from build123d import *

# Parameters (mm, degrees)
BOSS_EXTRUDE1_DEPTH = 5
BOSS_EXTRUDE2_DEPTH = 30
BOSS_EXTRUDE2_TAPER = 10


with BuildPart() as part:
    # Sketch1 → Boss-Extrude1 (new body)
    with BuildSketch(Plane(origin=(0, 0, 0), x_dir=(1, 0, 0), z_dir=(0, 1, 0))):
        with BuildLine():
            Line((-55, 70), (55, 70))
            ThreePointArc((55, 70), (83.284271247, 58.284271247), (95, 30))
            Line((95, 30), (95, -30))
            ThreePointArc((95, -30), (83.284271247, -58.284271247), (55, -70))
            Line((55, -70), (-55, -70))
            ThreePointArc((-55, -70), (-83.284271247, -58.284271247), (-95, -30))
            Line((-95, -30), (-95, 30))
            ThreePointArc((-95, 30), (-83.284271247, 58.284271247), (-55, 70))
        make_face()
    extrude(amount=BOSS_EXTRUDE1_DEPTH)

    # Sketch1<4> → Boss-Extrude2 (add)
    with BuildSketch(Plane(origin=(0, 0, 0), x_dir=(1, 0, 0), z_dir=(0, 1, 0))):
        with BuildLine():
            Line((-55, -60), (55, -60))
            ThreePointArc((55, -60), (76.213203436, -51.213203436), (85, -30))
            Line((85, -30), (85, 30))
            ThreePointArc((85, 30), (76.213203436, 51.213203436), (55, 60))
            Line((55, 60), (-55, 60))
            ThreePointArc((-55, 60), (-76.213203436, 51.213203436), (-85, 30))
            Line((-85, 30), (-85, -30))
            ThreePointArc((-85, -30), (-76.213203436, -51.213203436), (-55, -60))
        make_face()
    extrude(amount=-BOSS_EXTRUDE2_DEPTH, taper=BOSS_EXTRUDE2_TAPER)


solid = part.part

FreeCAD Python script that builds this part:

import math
import FreeCAD as App
import Part
import Sketcher

V = App.Vector

doc = App.newDocument("Part")
body = doc.addObject("PartDesign::Body", "Body")

# Sketch on XZ plane
sketch1 = body.newObject("Sketcher::SketchObject", "Sketch")
sketch1.AttachmentSupport = (doc.getObject("XZ_Plane"), [""])
sketch1.MapMode = "FlatFace"
sketch1.addGeometry([
    Part.LineSegment(V(55, -70, 0), V(-55, -70, 0)),  # 0
    Part.ArcOfCircle(Part.Circle(V(-55, -30, 0), V(0, 0, 1), 40), math.radians(-180), math.radians(-90)),  # 1
    Part.LineSegment(V(-95, -30, 0), V(-95, 30, 0)),  # 2
    Part.ArcOfCircle(Part.Circle(V(-55, 30, 0), V(0, 0, 1), 40), math.radians(90), math.radians(180)),  # 3
    Part.LineSegment(V(-55, 70, 0), V(55, 70, 0)),  # 4
    Part.ArcOfCircle(Part.Circle(V(55, 30, 0), V(0, 0, 1), 40), math.radians(0), math.radians(90)),  # 5
    Part.LineSegment(V(95, 30, 0), V(95, -30, 0)),  # 6
    Part.ArcOfCircle(Part.Circle(V(55, -30, 0), V(0, 0, 1), 40), math.radians(-90), math.radians(0)),  # 7
], False)
sketch1.addConstraint([
    Sketcher.Constraint("Tangent", 0, 2, 1, 2),
    Sketcher.Constraint("Tangent", 1, 1, 2, 1),
    Sketcher.Constraint("Tangent", 2, 2, 3, 2),
    Sketcher.Constraint("Tangent", 3, 1, 4, 1),
    Sketcher.Constraint("Tangent", 4, 2, 5, 2),
    Sketcher.Constraint("Tangent", 5, 1, 6, 1),
    Sketcher.Constraint("Tangent", 6, 2, 7, 2),
    Sketcher.Constraint("Tangent", 7, 1, 0, 1),
    Sketcher.Constraint("Horizontal", 0),
    Sketcher.Constraint("Vertical", 2),
    Sketcher.Constraint("Horizontal", 4),
    Sketcher.Constraint("Vertical", 6),
    Sketcher.Constraint("Equal", 1, 3),
    Sketcher.Constraint("Equal", 3, 5),
    Sketcher.Constraint("Equal", 5, 7),
    Sketcher.Constraint("Symmetric", 1, 3, 5, 3, -1, 1),
    Sketcher.Constraint("Radius", 1, 40.0),
    Sketcher.Constraint("DistanceX", 0, 2, 0, 1, 110.0),
    Sketcher.Constraint("DistanceY", 2, 1, 2, 2, 60.0),
])
pad1 = body.newObject("PartDesign::Pad", "Pad")
pad1.Profile = sketch1
pad1.Length = 5
pad1.Reversed = True

# Sketch on XZ plane
sketch2 = body.newObject("Sketcher::SketchObject", "Sketch001")
sketch2.AttachmentSupport = (doc.getObject("XZ_Plane"), [""])
sketch2.MapMode = "FlatFace"
sketch2.addGeometry([
    Part.LineSegment(V(-55, 60, 0), V(55, 60, 0)),  # 0
    Part.ArcOfCircle(Part.Circle(V(55, 30, 0), V(0, 0, 1), 30), math.radians(0), math.radians(90)),  # 1
    Part.LineSegment(V(85, 30, 0), V(85, -30, 0)),  # 2
    Part.ArcOfCircle(Part.Circle(V(55, -30, 0), V(0, 0, 1), 30), math.radians(-90), math.radians(0)),  # 3
    Part.LineSegment(V(55, -60, 0), V(-55, -60, 0)),  # 4
    Part.ArcOfCircle(Part.Circle(V(-55, -30, 0), V(0, 0, 1), 30), math.radians(180), math.radians(270)),  # 5
    Part.LineSegment(V(-85, -30, 0), V(-85, 30, 0)),  # 6
    Part.ArcOfCircle(Part.Circle(V(-55, 30, 0), V(0, 0, 1), 30), math.radians(90), math.radians(180)),  # 7
], False)
sketch2.addConstraint([
    Sketcher.Constraint("Tangent", 0, 2, 1, 2),
    Sketcher.Constraint("Tangent", 1, 1, 2, 1),
    Sketcher.Constraint("Tangent", 2, 2, 3, 2),
    Sketcher.Constraint("Tangent", 3, 1, 4, 1),
    Sketcher.Constraint("Tangent", 4, 2, 5, 2),
    Sketcher.Constraint("Tangent", 5, 1, 6, 1),
    Sketcher.Constraint("Tangent", 6, 2, 7, 2),
    Sketcher.Constraint("Tangent", 7, 1, 0, 1),
    Sketcher.Constraint("Horizontal", 0),
    Sketcher.Constraint("Vertical", 2),
    Sketcher.Constraint("Horizontal", 4),
    Sketcher.Constraint("Vertical", 6),
    Sketcher.Constraint("Equal", 1, 3),
    Sketcher.Constraint("Equal", 3, 5),
    Sketcher.Constraint("Equal", 5, 7),
    Sketcher.Constraint("Symmetric", 1, 3, 5, 3, -1, 1),
    Sketcher.Constraint("Radius", 1, 30.0),
    Sketcher.Constraint("DistanceX", 0, 1, 0, 2, 110.0),
    Sketcher.Constraint("DistanceY", 2, 2, 2, 1, 60.0),
])
pad2 = body.newObject("PartDesign::Pad", "Pad001")
pad2.Profile = sketch2
pad2.Length = 30
pad2.TaperAngle = -10

doc.recompute()
